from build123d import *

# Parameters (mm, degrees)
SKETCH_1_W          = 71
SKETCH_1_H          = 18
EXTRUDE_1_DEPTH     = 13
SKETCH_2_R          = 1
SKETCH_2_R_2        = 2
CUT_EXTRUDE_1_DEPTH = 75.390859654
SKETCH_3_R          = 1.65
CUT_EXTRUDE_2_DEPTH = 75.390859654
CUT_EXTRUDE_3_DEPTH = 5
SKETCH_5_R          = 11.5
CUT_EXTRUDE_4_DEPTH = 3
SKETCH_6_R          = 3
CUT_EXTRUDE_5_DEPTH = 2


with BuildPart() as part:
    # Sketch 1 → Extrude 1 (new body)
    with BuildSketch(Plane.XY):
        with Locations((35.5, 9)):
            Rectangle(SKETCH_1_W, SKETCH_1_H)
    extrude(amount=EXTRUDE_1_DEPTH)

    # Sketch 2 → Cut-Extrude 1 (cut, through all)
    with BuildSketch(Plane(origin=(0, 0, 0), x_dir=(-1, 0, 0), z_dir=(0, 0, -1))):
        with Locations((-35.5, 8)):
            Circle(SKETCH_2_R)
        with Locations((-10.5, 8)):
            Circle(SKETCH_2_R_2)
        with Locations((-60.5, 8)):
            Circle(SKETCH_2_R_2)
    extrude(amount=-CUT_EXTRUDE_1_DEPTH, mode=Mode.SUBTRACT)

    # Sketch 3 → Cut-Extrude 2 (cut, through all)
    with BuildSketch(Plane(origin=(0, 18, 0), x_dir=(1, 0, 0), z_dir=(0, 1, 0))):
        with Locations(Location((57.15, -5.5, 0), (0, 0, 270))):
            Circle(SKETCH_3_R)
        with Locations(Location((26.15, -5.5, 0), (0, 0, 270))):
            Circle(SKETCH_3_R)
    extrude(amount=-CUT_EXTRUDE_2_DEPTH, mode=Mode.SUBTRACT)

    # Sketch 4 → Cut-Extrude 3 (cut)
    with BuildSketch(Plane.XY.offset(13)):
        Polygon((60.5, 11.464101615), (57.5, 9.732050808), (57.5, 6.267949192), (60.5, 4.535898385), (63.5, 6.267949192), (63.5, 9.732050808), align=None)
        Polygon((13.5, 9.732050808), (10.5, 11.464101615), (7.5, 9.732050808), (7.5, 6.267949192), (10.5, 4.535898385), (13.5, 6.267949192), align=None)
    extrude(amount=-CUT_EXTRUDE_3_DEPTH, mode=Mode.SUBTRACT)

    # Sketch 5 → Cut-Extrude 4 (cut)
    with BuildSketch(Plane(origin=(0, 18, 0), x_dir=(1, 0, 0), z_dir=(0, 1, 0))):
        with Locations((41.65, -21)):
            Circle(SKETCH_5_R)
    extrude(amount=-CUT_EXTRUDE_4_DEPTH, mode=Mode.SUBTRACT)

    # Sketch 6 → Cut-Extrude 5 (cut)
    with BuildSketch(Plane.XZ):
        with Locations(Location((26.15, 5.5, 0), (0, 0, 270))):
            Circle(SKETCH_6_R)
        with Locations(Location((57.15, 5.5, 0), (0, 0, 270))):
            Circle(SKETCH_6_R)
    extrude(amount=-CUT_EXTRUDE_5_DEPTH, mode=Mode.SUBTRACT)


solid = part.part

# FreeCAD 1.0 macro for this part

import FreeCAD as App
import Part
import Sketcher

V = App.Vector
Q = App.Units.Quantity

doc = App.newDocument("Part")
body = doc.addObject("PartDesign::Body", "Body")

# Sketch on XY plane
sketch1 = body.newObject("Sketcher::SketchObject", "Sketch")
sketch1.AttachmentSupport = (doc.getObject("XY_Plane"), [""])
sketch1.MapMode = "FlatFace"
sketch1.addGeometry([
    Part.LineSegment(V(0, 18, 0), V(0, 0, 0)),
    Part.LineSegment(V(0, 0, 0), V(71, 0, 0)),
    Part.LineSegment(V(71, 0, 0), V(71, 18, 0)),
    Part.LineSegment(V(71, 18, 0), V(0, 18, 0)),
], False)
sketch1.addConstraint([
    Sketcher.Constraint("Coincident", 0, 2, 1, 1),
    Sketcher.Constraint("Coincident", 1, 2, 2, 1),
    Sketcher.Constraint("Coincident", 2, 2, 3, 1),
    Sketcher.Constraint("Coincident", 3, 2, 0, 1),
    Sketcher.Constraint("Vertical", 0),
    Sketcher.Constraint("Horizontal", 1),
    Sketcher.Constraint("Vertical", 2),
    Sketcher.Constraint("Horizontal", 3),
    Sketcher.Constraint("Coincident", 0, 2, -1, 1),
    Sketcher.Constraint("DistanceX", 1, 1, 1, 2, 71.0),
    Sketcher.Constraint("DistanceY", 0, 2, 0, 1, 18.0),
])
pad1 = body.newObject("PartDesign::Pad", "Pad")
pad1.Profile = sketch1
pad1.Length = 13

# Sketch on XY plane
sketch2 = body.newObject("Sketcher::SketchObject", "Sketch001")
sketch2.AttachmentSupport = (doc.getObject("XY_Plane"), [""])
sketch2.MapMode = "FlatFace"
sketch2.addGeometry([
    Part.Circle(V(35.5, 8, 0), V(0, 0, 1), 1),
    Part.Circle(V(10.5, 8, 0), V(0, 0, 1), 2),
    Part.Circle(V(60.5, 8, 0), V(0, 0, 1), 2),
], False)
sketch2.addConstraint([
    Sketcher.Constraint("Equal", 1, 2),
    Sketcher.Constraint("Horizontal", 0, 3, 1, 3),
    Sketcher.Constraint("Horizontal", 1, 3, 2, 3),
    Sketcher.Constraint("Diameter", 0, 2.0),
    Sketcher.Constraint("Diameter", 1, 4.0),
    Sketcher.Constraint("DistanceY", -1, 1, 0, 3, 8.0),
    Sketcher.Constraint("DistanceX", 1, 3, 0, 3, 25.0),
    Sketcher.Constraint("DistanceX", 0, 3, 2, 3, 25.0),
    Sketcher.Constraint("DistanceX", -1, 1, 0, 3, 35.5),
])
pocket1 = body.newObject("PartDesign::Pocket", "Pocket")
pocket1.Profile = sketch2
pocket1.Type = "ThroughAll"
pocket1.Reversed = True

# Sketch on XZ plane
sketch3 = body.newObject("Sketcher::SketchObject", "Sketch002")
sketch3.AttachmentSupport = (doc.getObject("XZ_Plane"), [""])
sketch3.MapMode = "FlatFace"
sketch3.AttachmentOffset = App.Placement(V(0, 0, -18), App.Rotation())
sketch3.addGeometry([
    Part.Circle(V(57.1, 5.5, 0), V(0, 0, 1), 1.6),
    Part.Circle(V(26.1, 5.5, 0), V(0, 0, 1), 1.6),
], False)
sketch3.addConstraint([
    Sketcher.Constraint("Equal", 0, 1),
    Sketcher.Constraint("Horizontal", 0, 3, 1, 3),
    Sketcher.Constraint("Diameter", 0, 3.3),
    Sketcher.Constraint("DistanceX", 1, 3, 0, 3, 31.0),
    Sketcher.Constraint("DistanceY", -1, 1, 0, 3, 5.5),
    Sketcher.Constraint("DistanceX", -1, 1, 0, 3, 57.15),
])
pocket2 = body.newObject("PartDesign::Pocket", "Pocket001")
pocket2.Profile = sketch3
pocket2.Type = "ThroughAll"
pocket2.Reversed = True

# Sketch on XY plane
sketch4 = body.newObject("Sketcher::SketchObject", "Sketch003")
sketch4.AttachmentSupport = (doc.getObject("XY_Plane"), [""])
sketch4.MapMode = "FlatFace"
sketch4.AttachmentOffset = App.Placement(V(0, 0, 13), App.Rotation())
sketch4.addGeometry([
    Part.LineSegment(V(60.5, 11.5, 0), V(57.5, 9.7, 0)),  # 0
    Part.LineSegment(V(57.5, 9.7, 0), V(57.5, 6.3, 0)),  # 1
    Part.LineSegment(V(57.5, 6.3, 0), V(60.5, 4.5, 0)),  # 2
    Part.LineSegment(V(60.5, 4.5, 0), V(63.5, 6.3, 0)),  # 3
    Part.LineSegment(V(63.5, 6.3, 0), V(63.5, 9.7, 0)),  # 4
    Part.LineSegment(V(63.5, 9.7, 0), V(60.5, 11.5, 0)),  # 5
    Part.LineSegment(V(13.5, 9.7, 0), V(10.5, 11.5, 0)),  # 6
    Part.LineSegment(V(10.5, 11.5, 0), V(7.5, 9.7, 0)),  # 7
    Part.LineSegment(V(7.5, 9.7, 0), V(7.5, 6.3, 0)),  # 8
    Part.LineSegment(V(7.5, 6.3, 0), V(10.5, 4.5, 0)),  # 9
    Part.LineSegment(V(10.5, 4.5, 0), V(13.5, 6.3, 0)),  # 10
    Part.LineSegment(V(13.5, 6.3, 0), V(13.5, 9.7, 0)),  # 11
], False)
sketch4.addConstraint([
    Sketcher.Constraint("Coincident", 0, 2, 1, 1),
    Sketcher.Constraint("Coincident", 1, 2, 2, 1),
    Sketcher.Constraint("Coincident", 2, 2, 3, 1),
    Sketcher.Constraint("Coincident", 3, 2, 4, 1),
    Sketcher.Constraint("Coincident", 4, 2, 5, 1),
    Sketcher.Constraint("Coincident", 5, 2, 0, 1),
    Sketcher.Constraint("Coincident", 6, 2, 7, 1),
    Sketcher.Constraint("Coincident", 7, 2, 8, 1),
    Sketcher.Constraint("Coincident", 8, 2, 9, 1),
    Sketcher.Constraint("Coincident", 9, 2, 10, 1),
    Sketcher.Constraint("Coincident", 10, 2, 11, 1),
    Sketcher.Constraint("Coincident", 11, 2, 6, 1),
    Sketcher.Constraint("Vertical", 1),
    Sketcher.Constraint("Vertical", 4),
    Sketcher.Constraint("Vertical", 8),
    Sketcher.Constraint("Vertical", 11),
    Sketcher.Constraint("Parallel", 0, 3),
    Sketcher.Constraint("Parallel", 2, 5),
    Sketcher.Constraint("Parallel", 5, 6),
    Sketcher.Constraint("Parallel", 3, 7),
    Sketcher.Constraint("Parallel", 6, 9),
    Sketcher.Constraint("Parallel", 7, 10),
    Sketcher.Constraint("Horizontal", 1, 2, 3, 2),
    Sketcher.Constraint("Horizontal", 0, 2, 4, 2),
    Sketcher.Constraint("Horizontal", 5, 2, 6, 2),
    Sketcher.Constraint("Horizontal", 4, 2, 7, 2),
    Sketcher.Constraint("Horizontal", 3, 2, 8, 2),
    Sketcher.Constraint("Horizontal", 2, 2, 9, 2),
    Sketcher.Constraint("Horizontal", 8, 2, 10, 2),
    Sketcher.Constraint("Vertical", 2, 2, 5, 2),
    Sketcher.Constraint("Angle", 0, Q("-150 deg")),
    Sketcher.Constraint("DistanceX", 1, 2, 2, 2, 3.0),
    Sketcher.Constraint("DistanceX", 6, 2, 0, 2, 47.0),
    Sketcher.Constraint("DistanceX", -1, 1, 0, 2, 57.5),
    Sketcher.Constraint("DistanceY", 1, 2, 1, 1, 3.464102),
    Sketcher.Constraint("DistanceY", -1, 1, 2, 2, 4.535898),
])
pocket3 = body.newObject("PartDesign::Pocket", "Pocket002")
pocket3.Profile = sketch4
pocket3.Length = 5

# Sketch on XZ plane
sketch5 = body.newObject("Sketcher::SketchObject", "Sketch004")
sketch5.AttachmentSupport = (doc.getObject("XZ_Plane"), [""])
sketch5.MapMode = "FlatFace"
sketch5.AttachmentOffset = App.Placement(V(0, 0, -18), App.Rotation())
sketch5.addGeometry(Part.Circle(V(42, 21, 0), V(0, 0, 1), 12), False)
sketch5.addConstraint([
    Sketcher.Constraint("Diameter", 0, 23.0),
    Sketcher.Constraint("DistanceY", -1, 1, 0, 3, 21.0),
    Sketcher.Constraint("DistanceX", -1, 1, 0, 3, 41.65),
])
pocket4 = body.newObject("PartDesign::Pocket", "Pocket003")
pocket4.Profile = sketch5
pocket4.Length = 3
pocket4.Reversed = True

# Sketch on XZ plane
sketch6 = body.newObject("Sketcher::SketchObject", "Sketch005")
sketch6.AttachmentSupport = (doc.getObject("XZ_Plane"), [""])
sketch6.MapMode = "FlatFace"
sketch6.addGeometry([
    Part.Circle(V(26.1, 5.5, 0), V(0, 0, 1), 3),
    Part.Circle(V(57.1, 5.5, 0), V(0, 0, 1), 3),
], False)
sketch6.addConstraint([
    Sketcher.Constraint("Equal", 0, 1),
    Sketcher.Constraint("Horizontal", 0, 3, 1, 3),
    Sketcher.Constraint("Diameter", 0, 6.0),
    Sketcher.Constraint("DistanceX", 0, 3, 1, 3, 31.0),
    Sketcher.Constraint("DistanceY", -1, 1, 0, 3, 5.5),
    Sketcher.Constraint("DistanceX", -1, 1, 0, 3, 26.15),
])
pocket5 = body.newObject("PartDesign::Pocket", "Pocket004")
pocket5.Profile = sketch6
pocket5.Length = 2

doc.recompute()
